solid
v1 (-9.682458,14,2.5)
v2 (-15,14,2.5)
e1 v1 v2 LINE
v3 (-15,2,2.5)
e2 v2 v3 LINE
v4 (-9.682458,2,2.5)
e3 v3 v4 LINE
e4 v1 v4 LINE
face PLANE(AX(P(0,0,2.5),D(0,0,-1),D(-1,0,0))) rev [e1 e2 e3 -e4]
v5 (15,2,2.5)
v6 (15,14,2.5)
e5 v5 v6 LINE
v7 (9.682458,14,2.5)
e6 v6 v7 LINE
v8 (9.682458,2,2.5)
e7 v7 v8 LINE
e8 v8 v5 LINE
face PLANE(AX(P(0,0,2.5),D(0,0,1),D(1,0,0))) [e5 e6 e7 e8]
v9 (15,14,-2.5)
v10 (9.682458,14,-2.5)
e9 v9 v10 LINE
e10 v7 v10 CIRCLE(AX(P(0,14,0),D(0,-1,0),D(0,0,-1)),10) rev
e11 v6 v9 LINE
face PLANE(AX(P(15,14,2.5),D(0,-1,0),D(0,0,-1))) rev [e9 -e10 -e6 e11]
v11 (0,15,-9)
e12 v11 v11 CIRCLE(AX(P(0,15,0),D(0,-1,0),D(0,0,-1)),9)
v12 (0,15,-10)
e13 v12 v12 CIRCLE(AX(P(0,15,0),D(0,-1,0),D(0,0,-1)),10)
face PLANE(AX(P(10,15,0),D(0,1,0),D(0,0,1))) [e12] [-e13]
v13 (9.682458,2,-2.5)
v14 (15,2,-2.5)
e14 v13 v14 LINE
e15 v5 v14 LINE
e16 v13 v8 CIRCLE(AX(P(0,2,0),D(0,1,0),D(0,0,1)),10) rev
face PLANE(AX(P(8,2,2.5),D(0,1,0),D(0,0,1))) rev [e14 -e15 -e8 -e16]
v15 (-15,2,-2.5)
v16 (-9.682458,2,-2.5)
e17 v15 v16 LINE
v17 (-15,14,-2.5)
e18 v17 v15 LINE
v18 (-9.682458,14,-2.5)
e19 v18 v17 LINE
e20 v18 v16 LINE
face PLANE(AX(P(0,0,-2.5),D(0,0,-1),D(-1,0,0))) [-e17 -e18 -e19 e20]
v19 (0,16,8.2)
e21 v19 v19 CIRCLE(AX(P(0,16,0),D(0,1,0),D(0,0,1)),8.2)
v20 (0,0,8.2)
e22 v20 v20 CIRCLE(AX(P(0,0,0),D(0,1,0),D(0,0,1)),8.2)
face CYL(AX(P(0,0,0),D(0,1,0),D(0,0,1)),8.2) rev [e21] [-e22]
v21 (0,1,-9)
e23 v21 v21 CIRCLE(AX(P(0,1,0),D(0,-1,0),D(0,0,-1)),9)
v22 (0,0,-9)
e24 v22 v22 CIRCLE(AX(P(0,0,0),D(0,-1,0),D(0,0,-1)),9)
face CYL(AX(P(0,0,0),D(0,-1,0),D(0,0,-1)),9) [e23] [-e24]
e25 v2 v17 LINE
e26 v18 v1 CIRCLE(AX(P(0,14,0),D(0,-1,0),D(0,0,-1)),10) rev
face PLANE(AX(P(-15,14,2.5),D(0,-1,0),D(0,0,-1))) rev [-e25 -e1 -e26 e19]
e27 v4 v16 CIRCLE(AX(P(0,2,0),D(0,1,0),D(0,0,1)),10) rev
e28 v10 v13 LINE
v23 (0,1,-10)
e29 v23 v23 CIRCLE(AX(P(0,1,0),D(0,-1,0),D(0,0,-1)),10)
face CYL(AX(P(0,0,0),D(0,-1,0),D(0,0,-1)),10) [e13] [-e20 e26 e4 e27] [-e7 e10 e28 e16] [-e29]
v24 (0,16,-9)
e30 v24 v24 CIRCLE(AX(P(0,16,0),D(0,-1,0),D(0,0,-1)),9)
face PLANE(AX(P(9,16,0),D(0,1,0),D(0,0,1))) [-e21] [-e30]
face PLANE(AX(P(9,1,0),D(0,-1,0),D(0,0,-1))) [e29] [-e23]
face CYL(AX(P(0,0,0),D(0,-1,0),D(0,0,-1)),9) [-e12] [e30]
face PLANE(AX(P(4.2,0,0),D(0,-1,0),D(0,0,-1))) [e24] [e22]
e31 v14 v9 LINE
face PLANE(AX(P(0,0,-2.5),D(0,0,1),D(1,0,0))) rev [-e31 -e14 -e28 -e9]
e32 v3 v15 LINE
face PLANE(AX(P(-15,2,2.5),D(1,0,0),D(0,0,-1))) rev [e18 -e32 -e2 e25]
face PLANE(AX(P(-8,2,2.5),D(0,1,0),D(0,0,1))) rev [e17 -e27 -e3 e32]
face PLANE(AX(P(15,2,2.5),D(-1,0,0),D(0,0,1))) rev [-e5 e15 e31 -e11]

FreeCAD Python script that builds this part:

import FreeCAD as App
import Part
import Sketcher

doc = App.newDocument("Part")
params = doc.addObject("Spreadsheet::Sheet", "Params")
for row, (alias, value) in enumerate([
    ("sketch1_width", "1 mm"),
    ("sketch1_height", "14 mm"),
    ("sketch1_width2", "4.8 mm"),
    ("revolution_angle", "360 deg"),
    ("sketch2_width", "7 mm"),
    ("sketch2_height", "12 mm"),
    ("pad1_length", "5 mm"),
    ("sketch3_width", "7 mm"),
    ("sketch3_height", "12 mm"),
    ("pad2_length", "5 mm"),
    ("sketch4_diameter", "16.4 mm"),
], start=1):
    params.set(f"A{row}", alias)
    params.set(f"B{row}", "=" + value)
    params.setAlias(f"B{row}", alias)

body = doc.addObject("PartDesign::Body", "Body")

sketch1 = doc.addObject("Sketcher::SketchObject", "Sketch")
body.addObject(sketch1)
sketch1.AttachmentSupport = (doc.XY_Plane, [""])
sketch1.MapMode = "FlatFace"
sketch1.addGeometry([
    Part.LineSegment(App.Vector(4.2, 0, 0), App.Vector(9, 0, 0)),
    Part.LineSegment(App.Vector(9, 0, 0), App.Vector(9, 1, 0)),
    Part.LineSegment(App.Vector(9, 1, 0), App.Vector(10, 1, 0)),
    Part.LineSegment(App.Vector(10, 1, 0), App.Vector(10, 15, 0)),
    Part.LineSegment(App.Vector(10, 15, 0), App.Vector(9, 15, 0)),
    Part.LineSegment(App.Vector(9, 15, 0), App.Vector(9, 16, 0)),
    Part.LineSegment(App.Vector(9, 16, 0), App.Vector(4.2, 16, 0)),
    Part.LineSegment(App.Vector(4.2, 16, 0), App.Vector(4.2, 0, 0)),
], False)
sketch1.addConstraint([
    Sketcher.Constraint("Coincident", 0, 2, 1, 1),
    Sketcher.Constraint("Coincident", 1, 2, 2, 1),
    Sketcher.Constraint("Coincident", 2, 2, 3, 1),
    Sketcher.Constraint("Coincident", 3, 2, 4, 1),
    Sketcher.Constraint("Coincident", 4, 2, 5, 1),
    Sketcher.Constraint("Coincident", 5, 2, 6, 1),
    Sketcher.Constraint("Coincident", 6, 2, 7, 1),
    Sketcher.Constraint("Coincident", 7, 2, 0, 1),
    Sketcher.Constraint("Horizontal", 0),
    Sketcher.Constraint("Vertical", 1),
    Sketcher.Constraint("Horizontal", 2),
    Sketcher.Constraint("Vertical", 3),
    Sketcher.Constraint("Horizontal", 4),
    Sketcher.Constraint("Vertical", 5),
    Sketcher.Constraint("Horizontal", 6),
    Sketcher.Constraint("Vertical", 7),
    Sketcher.Constraint("PointOnObject", 0, 2, -1),
    Sketcher.Constraint("Vertical", 1, 2, 4, 2),
    Sketcher.Constraint("Equal", 4, 1),
    Sketcher.Constraint("Equal", 1, 5),
    Sketcher.Constraint("DistanceX", 2, 1, 2, 2, 1.0),
    Sketcher.Constraint("DistanceY", 3, 1, 3, 2, 14.0),
    Sketcher.Constraint("DistanceX", 0, 1, 0, 2, 4.8),
    Sketcher.Constraint("DistanceX", -1, 1, 0, 2, 9.0),
])
sketch1.setExpression("Constraints[20]", "Params.sketch1_width")
sketch1.setExpression("Constraints[21]", "Params.sketch1_height")
sketch1.setExpression("Constraints[22]", "Params.sketch1_width2")
revolution = doc.addObject("PartDesign::Revolution", "Revolution")
body.addObject(revolution)
revolution.Profile = sketch1
revolution.ReferenceAxis = (sketch1, ["V_Axis"])
revolution.setExpression("Angle", "Params.revolution_angle")

sketch2 = doc.addObject("Sketcher::SketchObject", "Sketch001")
body.addObject(sketch2)
sketch2.AttachmentSupport = (doc.XY_Plane, [""])
sketch2.MapMode = "FlatFace"
sketch2.AttachmentOffset = App.Placement(App.Vector(0, 0, -2.5), App.Rotation())
sketch2.addGeometry([
    Part.LineSegment(App.Vector(-15, 14, 0), App.Vector(-15, 2, 0)),
    Part.LineSegment(App.Vector(-15, 2, 0), App.Vector(-8, 2, 0)),
    Part.LineSegment(App.Vector(-8, 2, 0), App.Vector(-8, 14, 0)),
    Part.LineSegment(App.Vector(-8, 14, 0), App.Vector(-15, 14, 0)),
], False)
sketch2.addConstraint([
    Sketcher.Constraint("Coincident", 0, 2, 1, 1),
    Sketcher.Constraint("Coincident", 1, 2, 2, 1),
    Sketcher.Constraint("Coincident", 2, 2, 3, 1),
    Sketcher.Constraint("Coincident", 3, 2, 0, 1),
    Sketcher.Constraint("Vertical", 0),
    Sketcher.Constraint("Horizontal", 1),
    Sketcher.Constraint("Vertical", 2),
    Sketcher.Constraint("Horizontal", 3),
    Sketcher.Constraint("DistanceX", 1, 1, 1, 2, 7.0),
    Sketcher.Constraint("DistanceY", 0, 2, 0, 1, 12.0),
    Sketcher.Constraint("DistanceX", 0, 2, -1, 1, 15.0),
    Sketcher.Constraint("DistanceY", -1, 1, 0, 2, 2.0),
])
sketch2.setExpression("Constraints[8]", "Params.sketch2_width")
sketch2.setExpression("Constraints[9]", "Params.sketch2_height")
pad1 = doc.addObject("PartDesign::Pad", "Pad")
body.addObject(pad1)
pad1.Profile = sketch2
pad1.setExpression("Length", "Params.pad1_length")

sketch3 = doc.addObject("Sketcher::SketchObject", "Sketch002")
body.addObject(sketch3)
sketch3.AttachmentSupport = (doc.XY_Plane, [""])
sketch3.MapMode = "FlatFace"
sketch3.AttachmentOffset = App.Placement(App.Vector(0, 0, -2.5), App.Rotation())
sketch3.addGeometry([
    Part.LineSegment(App.Vector(8, 14, 0), App.Vector(8, 2, 0)),
    Part.LineSegment(App.Vector(8, 2, 0), App.Vector(15, 2, 0)),
    Part.LineSegment(App.Vector(15, 2, 0), App.Vector(15, 14, 0)),
    Part.LineSegment(App.Vector(15, 14, 0), App.Vector(8, 14, 0)),
], False)
sketch3.addConstraint([
    Sketcher.Constraint("Coincident", 0, 2, 1, 1),
    Sketcher.Constraint("Coincident", 1, 2, 2, 1),
    Sketcher.Constraint("Coincident", 2, 2, 3, 1),
    Sketcher.Constraint("Coincident", 3, 2, 0, 1),
    Sketcher.Constraint("Vertical", 0),
    Sketcher.Constraint("Horizontal", 1),
    Sketcher.Constraint("Vertical", 2),
    Sketcher.Constraint("Horizontal", 3),
    Sketcher.Constraint("DistanceX", 1, 1, 1, 2, 7.0),
    Sketcher.Constraint("DistanceY", 0, 2, 0, 1, 12.0),
    Sketcher.Constraint("DistanceX", -1, 1, 0, 2, 8.0),
    Sketcher.Constraint("DistanceY", -1, 1, 0, 2, 2.0),
])
sketch3.setExpression("Constraints[8]", "Params.sketch3_width")
sketch3.setExpression("Constraints[9]", "Params.sketch3_height")
pad2 = doc.addObject("PartDesign::Pad", "Pad001")
body.addObject(pad2)
pad2.Profile = sketch3
pad2.setExpression("Length", "Params.pad2_length")

sketch4 = doc.addObject("Sketcher::SketchObject", "Sketch003")
body.addObject(sketch4)
sketch4.AttachmentSupport = (doc.XZ_Plane, [""])
sketch4.MapMode = "FlatFace"
sketch4.AttachmentOffset = App.Placement(App.Vector(0, 0, -16), App.Rotation())
sketch4.addGeometry(Part.Circle(App.Vector(0, 0, 0), App.Vector(0, 0, 1), 8.2), False)
sketch4.addConstraint([
    Sketcher.Constraint("Coincident", 0, 3, -1, 1),
    Sketcher.Constraint("Diameter", 0, 16.4),
])
sketch4.setExpression("Constraints[1]", "Params.sketch4_diameter")
pocket1 = doc.addObject("PartDesign::Pocket", "Pocket")
body.addObject(pocket1)
pocket1.Profile = sketch4
pocket1.Type = "ThroughAll"
pocket1.Reversed = True

doc.recompute()
